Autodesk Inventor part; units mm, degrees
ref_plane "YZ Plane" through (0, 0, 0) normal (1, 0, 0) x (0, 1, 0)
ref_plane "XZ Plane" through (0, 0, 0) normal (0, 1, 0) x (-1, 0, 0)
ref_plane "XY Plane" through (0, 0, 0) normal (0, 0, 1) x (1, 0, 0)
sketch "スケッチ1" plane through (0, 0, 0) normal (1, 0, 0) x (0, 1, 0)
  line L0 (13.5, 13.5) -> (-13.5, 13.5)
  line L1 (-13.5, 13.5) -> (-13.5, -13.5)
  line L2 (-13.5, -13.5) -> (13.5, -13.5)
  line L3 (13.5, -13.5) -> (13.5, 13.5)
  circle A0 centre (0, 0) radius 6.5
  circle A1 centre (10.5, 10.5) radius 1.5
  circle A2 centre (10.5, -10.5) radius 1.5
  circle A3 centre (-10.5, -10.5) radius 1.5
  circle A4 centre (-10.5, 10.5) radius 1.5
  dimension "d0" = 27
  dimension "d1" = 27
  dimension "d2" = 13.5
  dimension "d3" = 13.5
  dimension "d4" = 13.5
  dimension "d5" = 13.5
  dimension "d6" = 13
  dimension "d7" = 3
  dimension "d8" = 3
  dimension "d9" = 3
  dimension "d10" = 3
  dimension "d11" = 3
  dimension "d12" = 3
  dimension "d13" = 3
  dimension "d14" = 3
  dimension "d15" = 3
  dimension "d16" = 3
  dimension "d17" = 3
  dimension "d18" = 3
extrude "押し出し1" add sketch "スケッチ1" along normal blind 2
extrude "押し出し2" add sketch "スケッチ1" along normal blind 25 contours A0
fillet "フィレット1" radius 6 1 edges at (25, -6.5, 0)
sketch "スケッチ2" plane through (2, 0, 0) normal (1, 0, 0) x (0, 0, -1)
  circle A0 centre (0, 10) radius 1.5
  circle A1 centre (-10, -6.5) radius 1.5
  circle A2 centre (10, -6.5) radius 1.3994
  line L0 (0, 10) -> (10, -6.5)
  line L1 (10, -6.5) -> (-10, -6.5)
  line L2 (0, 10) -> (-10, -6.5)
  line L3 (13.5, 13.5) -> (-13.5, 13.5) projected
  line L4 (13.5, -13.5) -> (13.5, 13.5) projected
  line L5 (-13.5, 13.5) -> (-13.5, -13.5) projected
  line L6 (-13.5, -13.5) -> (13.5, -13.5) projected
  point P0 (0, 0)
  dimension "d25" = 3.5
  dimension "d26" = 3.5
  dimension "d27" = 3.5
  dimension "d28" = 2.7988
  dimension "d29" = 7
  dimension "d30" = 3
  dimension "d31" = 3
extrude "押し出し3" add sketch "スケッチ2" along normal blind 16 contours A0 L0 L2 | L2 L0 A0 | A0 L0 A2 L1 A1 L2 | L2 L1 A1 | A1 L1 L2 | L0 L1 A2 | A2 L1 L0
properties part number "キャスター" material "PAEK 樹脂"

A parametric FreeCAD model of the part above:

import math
import FreeCAD as App
import Part
import Sketcher


def edges_at(feature, points):
    """Names of the edges that pass closest to the given points."""
    edges = feature.Shape.Edges
    near = lambda p: min(range(len(edges)), key=lambda i: edges[i].distToShape(Part.Vertex(*p))[0])
    return sorted({f"Edge{near(p) + 1}" for p in points})

doc = App.newDocument("Part")
body = doc.addObject("PartDesign::Body", "Body")

# Sketch on YZ plane
sketch1 = body.newObject("Sketcher::SketchObject", "Sketch")
sketch1.AttachmentSupport = (doc.getObject("YZ_Plane"), [""])
sketch1.MapMode = "FlatFace"
sketch1.addGeometry([
    Part.LineSegment(App.Vector(13.5, -13.5, 0), App.Vector(13.5, 13.5, 0)),  # 0
    Part.LineSegment(App.Vector(13.5, 13.5, 0), App.Vector(-13.5, 13.5, 0)),  # 1
    Part.LineSegment(App.Vector(-13.5, 13.5, 0), App.Vector(-13.5, -13.5, 0)),  # 2
    Part.LineSegment(App.Vector(-13.5, -13.5, 0), App.Vector(13.5, -13.5, 0)),  # 3
    Part.Circle(App.Vector(-10.5, -10.5, 0), App.Vector(0, 0, 1), 1.5),  # 4
    Part.Circle(App.Vector(10.5, -10.5, 0), App.Vector(0, 0, 1), 1.5),  # 5
    Part.Circle(App.Vector(-10.5, 10.5, 0), App.Vector(0, 0, 1), 1.5),  # 6
    Part.Circle(App.Vector(0, 0, 0), App.Vector(0, 0, 1), 6.5),  # 7
    Part.Circle(App.Vector(10.5, 10.5, 0), App.Vector(0, 0, 1), 1.5),  # 8
], False)
sketch1.addConstraint([
    Sketcher.Constraint("Coincident", 0, 2, 1, 1),
    Sketcher.Constraint("Coincident", 1, 2, 2, 1),
    Sketcher.Constraint("Coincident", 2, 2, 3, 1),
    Sketcher.Constraint("Coincident", 3, 2, 0, 1),
    Sketcher.Constraint("Vertical", 0),
    Sketcher.Constraint("Horizontal", 1),
    Sketcher.Constraint("Vertical", 2),
    Sketcher.Constraint("Horizontal", 3),
    Sketcher.Constraint("Coincident", 7, 3, -1, 1),
    Sketcher.Constraint("Equal", 4, 5),
    Sketcher.Constraint("Equal", 5, 6),
    Sketcher.Constraint("Equal", 6, 8),
    Sketcher.Constraint("Symmetric", 5, 3, 6, 3, -1, 1),
    Sketcher.Constraint("Symmetric", 4, 3, 8, 3, -1, 1),
    Sketcher.Constraint("Symmetric", 0, 2, 2, 2, -1, 1),
    Sketcher.Constraint("Symmetric", 4, 3, 5, 3, -2),
    Sketcher.Constraint("Equal", 3, 0),
    Sketcher.Constraint("Diameter", 4, 3.0),
    Sketcher.Constraint("Diameter", 7, 13.0),
    Sketcher.Constraint("DistanceX", 1, 2, 1, 1, 27.0),
    Sketcher.Constraint("DistanceX", 8, 3, 0, 2, 3.0),
    Sketcher.Constraint("DistanceY", 8, 3, 0, 2, 3.0),
])
pad1 = body.newObject("PartDesign::Pad", "Pad")
pad1.Profile = sketch1
pad1.Length = 2

# Sketch on YZ plane
sketch2 = body.newObject("Sketcher::SketchObject", "Sketch001")
sketch2.AttachmentSupport = (doc.getObject("YZ_Plane"), [""])
sketch2.MapMode = "FlatFace"
sketch2.addGeometry(Part.Circle(App.Vector(0, 0, 0), App.Vector(0, 0, 1), 6), False)
sketch2.addConstraint([
    Sketcher.Constraint("Coincident", 0, 3, -1, 1),
    Sketcher.Constraint("Diameter", 0, 13.0),
])
pad2 = body.newObject("PartDesign::Pad", "Pad001")
pad2.Profile = sketch2
pad2.Length = 25
doc.recompute()

fillet = body.newObject("PartDesign::Fillet", "Fillet")
fillet.Base = (pad2, edges_at(pad2, [(25, -6.5, 0)]))
fillet.Radius = 6

# Sketch on YZ plane
sketch3 = body.newObject("Sketcher::SketchObject", "Sketch002")
sketch3.AttachmentSupport = (doc.getObject("YZ_Plane"), [""])
sketch3.MapMode = "FlatFace"
sketch3.AttachmentOffset = App.Placement(App.Vector(0, 0, 2), App.Rotation())
sketch3.addGeometry([
    Part.ArcOfCircle(Part.Circle(App.Vector(10, 0, 0), App.Vector(0, 0, 1), 1.5), math.radians(-149), math.radians(149)),  # 0
    Part.LineSegment(App.Vector(8.7, 0.8, 0), App.Vector(-5.2, 9.2, 0)),  # 1
    Part.ArcOfCircle(Part.Circle(App.Vector(-6.5, 10, 0), App.Vector(0, 0, 1), 1.5), math.radians(-31), math.radians(270)),  # 2
    Part.LineSegment(App.Vector(-6.5, 8.5, 0), App.Vector(-6.5, -8.6, 0)),  # 3
    Part.ArcOfCircle(Part.Circle(App.Vector(-6.5, -10, 0), App.Vector(0, 0, 1), 1.4), math.radians(90), math.radians(391)),  # 4
    Part.LineSegment(App.Vector(-5.3, -9.3, 0), App.Vector(8.7, -0.8, 0)),  # 5
], False)
sketch3.addConstraint([
    Sketcher.Constraint("Coincident", 0, 2, 1, 1),
    Sketcher.Constraint("Coincident", 1, 2, 2, 1),
    Sketcher.Constraint("Coincident", 2, 2, 3, 1),
    Sketcher.Constraint("Coincident", 3, 2, 4, 1),
    Sketcher.Constraint("Coincident", 4, 2, 5, 1),
    Sketcher.Constraint("Coincident", 5, 2, 0, 1),
    Sketcher.Constraint("Vertical", 3),
    Sketcher.Constraint("Equal", 0, 2),
    Sketcher.Constraint("Symmetric", 2, 3, 4, 3, -1),
    Sketcher.Constraint("Symmetric", 0, 2, 5, 2, -1),
    Sketcher.Constraint("Vertical", 4, 3, 2, 2),
    Sketcher.Constraint("Radius", 0, 1.5),
    Sketcher.Constraint("Radius", 4, 1.3994),
    Sketcher.Constraint("DistanceX", -1, 1, 0, 3, 10.0),
    Sketcher.Constraint("DistanceY", -1, 1, 2, 3, 10.0),
    Sketcher.Constraint("DistanceY", 5, 2, 1, 2, 10.0),
    Sketcher.Constraint("DistanceX", 2, 3, -1, 1, 6.5),
    Sketcher.Constraint("DistanceY", 0, 2, 1, 2, 8.445),
    Sketcher.Constraint("DistanceY", 4, 2, 3, 2, 0.674),
])
pad3 = body.newObject("PartDesign::Pad", "Pad002")
pad3.Profile = sketch3
pad3.Length = 16

doc.recompute()
